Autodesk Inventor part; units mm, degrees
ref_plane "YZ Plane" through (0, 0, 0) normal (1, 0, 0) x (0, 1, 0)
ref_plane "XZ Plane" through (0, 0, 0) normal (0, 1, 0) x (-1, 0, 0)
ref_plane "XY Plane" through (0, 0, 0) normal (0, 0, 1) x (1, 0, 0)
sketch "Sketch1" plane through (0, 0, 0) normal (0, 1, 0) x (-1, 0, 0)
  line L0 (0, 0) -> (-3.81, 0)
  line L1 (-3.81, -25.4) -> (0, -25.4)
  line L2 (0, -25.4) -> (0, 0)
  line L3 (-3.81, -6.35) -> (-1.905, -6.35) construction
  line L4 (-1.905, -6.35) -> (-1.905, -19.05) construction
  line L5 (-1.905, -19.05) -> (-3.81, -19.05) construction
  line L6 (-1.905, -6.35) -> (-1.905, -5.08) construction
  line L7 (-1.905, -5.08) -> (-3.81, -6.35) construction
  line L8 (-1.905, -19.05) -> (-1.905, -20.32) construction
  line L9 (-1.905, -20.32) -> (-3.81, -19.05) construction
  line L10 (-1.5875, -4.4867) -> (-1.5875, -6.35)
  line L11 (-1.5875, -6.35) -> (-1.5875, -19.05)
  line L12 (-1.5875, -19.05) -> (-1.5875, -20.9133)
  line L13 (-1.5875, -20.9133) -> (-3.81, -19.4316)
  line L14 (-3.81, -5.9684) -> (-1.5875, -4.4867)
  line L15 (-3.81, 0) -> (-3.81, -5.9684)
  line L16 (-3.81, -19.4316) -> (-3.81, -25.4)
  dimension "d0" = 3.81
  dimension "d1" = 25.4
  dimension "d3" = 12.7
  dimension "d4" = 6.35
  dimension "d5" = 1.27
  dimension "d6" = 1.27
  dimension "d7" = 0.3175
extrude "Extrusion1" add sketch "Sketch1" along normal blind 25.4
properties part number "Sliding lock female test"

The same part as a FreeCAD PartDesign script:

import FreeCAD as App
import Part
import Sketcher
from FreeCAD import Vector
Q = App.Units.Quantity

doc = App.newDocument("Part")
params = doc.addObject("Spreadsheet::Sheet", "Params")
for row, (alias, value) in enumerate([
    ("sketch1_height", "1 in"),
    ("sketch1_width", "0.15 in"),
    ("pad1_length", "1 in"),
], start=1):
    params.set(f"A{row}", alias)
    params.set(f"B{row}", "=" + value)
    params.setAlias(f"B{row}", alias)

body = doc.addObject("PartDesign::Body", "Body")

# Sketch on XZ plane
sketch1 = body.newObject("Sketcher::SketchObject", "Sketch")
sketch1.AttachmentSupport = (doc.getObject("XZ_Plane"), [""])
sketch1.MapMode = "FlatFace"
sketch1.addGeometry(Part.LineSegment(Vector(0, -25.4, 0), Vector(0, 0, 0)), False)
sketch1.addGeometry(Part.LineSegment(Vector(0, 0, 0), Vector(3.81, 0, 0)), False)
sketch1.addGeometry(Part.LineSegment(Vector(3.81, 0, 0), Vector(3.81, -5.9684, 0)), False)
sketch1.addGeometry(Part.LineSegment(Vector(3.81, -5.9684, 0), Vector(1.5875, -4.4867, 0)), False)
sketch1.addGeometry(Part.LineSegment(Vector(1.5875, -4.4867, 0), Vector(1.5875, -20.9133, 0)), False)
sketch1.addGeometry(Part.LineSegment(Vector(1.5875, -20.9133, 0), Vector(3.81, -19.4316, 0)), False)
sketch1.addGeometry(Part.LineSegment(Vector(3.81, -19.4316, 0), Vector(3.81, -25.4, 0)), False)
sketch1.addGeometry(Part.LineSegment(Vector(3.81, -25.4, 0), Vector(0, -25.4, 0)), False)
sketch1.addConstraint(Sketcher.Constraint("Coincident", 0, 2, 1, 1))
sketch1.addConstraint(Sketcher.Constraint("Coincident", 1, 2, 2, 1))
sketch1.addConstraint(Sketcher.Constraint("Coincident", 2, 2, 3, 1))
sketch1.addConstraint(Sketcher.Constraint("Coincident", 3, 2, 4, 1))
sketch1.addConstraint(Sketcher.Constraint("Coincident", 4, 2, 5, 1))
sketch1.addConstraint(Sketcher.Constraint("Coincident", 5, 2, 6, 1))
sketch1.addConstraint(Sketcher.Constraint("Coincident", 6, 2, 7, 1))
sketch1.addConstraint(Sketcher.Constraint("Coincident", 7, 2, 0, 1))
sketch1.addConstraint(Sketcher.Constraint("Vertical", 0))
sketch1.addConstraint(Sketcher.Constraint("Horizontal", 1))
sketch1.addConstraint(Sketcher.Constraint("Vertical", 2))
sketch1.addConstraint(Sketcher.Constraint("Vertical", 4))
sketch1.addConstraint(Sketcher.Constraint("Vertical", 6))
sketch1.addConstraint(Sketcher.Constraint("Horizontal", 7))
sketch1.addConstraint(Sketcher.Constraint("Coincident", 0, 2, -1, 1))
sketch1.addConstraint(Sketcher.Constraint("Vertical", 2, 2, 5, 2))
sketch1.addConstraint(Sketcher.Constraint("Equal", 2, 6))
sketch1.addConstraint(Sketcher.Constraint("Equal", 3, 5))
sketch1.addConstraint(Sketcher.Constraint("DistanceY", 0, 1, 0, 2, Q("1 in")))
sketch1.addConstraint(Sketcher.Constraint("DistanceX", 1, 1, 1, 2, Q("0.15 in")))
sketch1.addConstraint(Sketcher.Constraint("Angle", 3, Q("146.3093 deg")))
sketch1.addConstraint(Sketcher.Constraint("DistanceX", -1, 1, 3, 2, Q("0.0625 in")))
sketch1.addConstraint(Sketcher.Constraint("DistanceY", 2, 2, 2, 1, Q("5.9684 mm")))
sketch1.setExpression("Constraints[18]", "Params.sketch1_height")
sketch1.setExpression("Constraints[19]", "Params.sketch1_width")
pad1 = body.newObject("PartDesign::Pad", "Pad")
pad1.Profile = sketch1
pad1.setExpression("Length", "Params.pad1_length")
pad1.Reversed = True

doc.recompute()
